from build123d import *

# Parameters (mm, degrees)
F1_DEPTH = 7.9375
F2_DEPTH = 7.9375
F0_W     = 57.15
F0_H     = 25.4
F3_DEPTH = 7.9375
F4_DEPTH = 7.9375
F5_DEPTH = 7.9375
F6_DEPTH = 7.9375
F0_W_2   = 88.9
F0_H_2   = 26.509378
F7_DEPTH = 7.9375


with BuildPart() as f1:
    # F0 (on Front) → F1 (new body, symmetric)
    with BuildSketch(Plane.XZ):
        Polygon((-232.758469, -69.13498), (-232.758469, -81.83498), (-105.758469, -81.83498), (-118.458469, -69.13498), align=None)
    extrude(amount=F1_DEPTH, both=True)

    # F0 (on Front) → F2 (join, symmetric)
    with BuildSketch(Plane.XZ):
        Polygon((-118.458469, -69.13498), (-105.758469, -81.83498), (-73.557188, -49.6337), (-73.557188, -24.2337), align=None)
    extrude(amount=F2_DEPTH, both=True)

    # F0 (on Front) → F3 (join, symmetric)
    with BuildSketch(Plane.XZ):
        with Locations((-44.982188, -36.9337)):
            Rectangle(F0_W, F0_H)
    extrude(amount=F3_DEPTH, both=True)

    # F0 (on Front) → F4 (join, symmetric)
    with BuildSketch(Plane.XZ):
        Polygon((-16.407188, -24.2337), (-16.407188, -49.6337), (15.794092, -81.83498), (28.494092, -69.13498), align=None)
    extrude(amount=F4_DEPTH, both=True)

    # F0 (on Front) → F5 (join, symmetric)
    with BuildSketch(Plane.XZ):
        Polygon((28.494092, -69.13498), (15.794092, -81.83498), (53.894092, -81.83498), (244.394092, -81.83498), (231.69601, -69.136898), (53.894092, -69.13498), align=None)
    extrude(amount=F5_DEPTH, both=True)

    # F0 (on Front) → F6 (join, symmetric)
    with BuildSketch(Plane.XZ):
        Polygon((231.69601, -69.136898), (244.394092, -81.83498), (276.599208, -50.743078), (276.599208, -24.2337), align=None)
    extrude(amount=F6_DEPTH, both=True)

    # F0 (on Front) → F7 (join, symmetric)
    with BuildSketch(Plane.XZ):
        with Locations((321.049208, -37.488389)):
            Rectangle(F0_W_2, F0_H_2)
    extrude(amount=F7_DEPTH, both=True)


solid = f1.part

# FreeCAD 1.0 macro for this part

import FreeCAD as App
import Part
import Sketcher

V = App.Vector
Q = App.Units.Quantity


def add_polygon(sketch, points):
    """Adds a closed chain of lines whose ends are joined by coincident constraints."""
    first, n = sketch.GeometryCount, len(points)
    for a, b in zip(points, points[1:] + points[:1]):
        sketch.addGeometry(Part.LineSegment(App.Vector(*a, 0), App.Vector(*b, 0)), False)
    for i in range(n):
        sketch.addConstraint(Sketcher.Constraint("Coincident", first + i, 2, first + (i + 1) % n, 1))

doc = App.newDocument("Part")
body = doc.addObject("PartDesign::Body", "Body")

# Sketch on XZ plane
sketch1 = body.newObject("Sketcher::SketchObject", "Sketch")
sketch1.AttachmentSupport = (doc.getObject("XZ_Plane"), [""])
sketch1.MapMode = "FlatFace"
add_polygon(sketch1, [(-233, -69), (-233, -82), (-106, -82), (-118, -69)])  # lines 0-3
sketch1.addConstraint([
    Sketcher.Constraint("Vertical", 0),
    Sketcher.Constraint("Horizontal", 1),
    Sketcher.Constraint("Horizontal", 3),
    Sketcher.Constraint("DistanceX", 1, 1, 1, 2, Q("5 in")),
    Sketcher.Constraint("DistanceX", 3, 2, 3, 1, Q("4.5 in")),
    Sketcher.Constraint("DistanceY", 0, 2, 0, 1, Q("0.5 in")),
    Sketcher.Constraint("DistanceX", 0, 2, -1, 1, 232.758469),
    Sketcher.Constraint("DistanceY", 0, 2, -1, 1, 81.83498),
])
pad1 = body.newObject("PartDesign::Pad", "Pad")
pad1.Profile = sketch1
pad1.Length = Q("0.625 in")
pad1.Midplane = True

# Sketch on XZ plane
sketch2 = body.newObject("Sketcher::SketchObject", "Sketch001")
sketch2.AttachmentSupport = (doc.getObject("XZ_Plane"), [""])
sketch2.MapMode = "FlatFace"
add_polygon(sketch2, [(-118, -69), (-106, -82), (-74, -50), (-74, -24)])  # lines 0-3
sketch2.addConstraint([
    Sketcher.Constraint("Vertical", 2),
    Sketcher.Constraint("Perpendicular", 0, 1),
    Sketcher.Constraint("Parallel", 1, 3),
    Sketcher.Constraint("DistanceY", 2, 1, 2, 2, Q("1 in")),
    Sketcher.Constraint("Angle", 0, Q("-45 deg")),
    Sketcher.Constraint("Distance", 3, Q("2.5 in")),
    Sketcher.Constraint("DistanceY", 1, 2, -1, 1, 49.6337),
    Sketcher.Constraint("DistanceX", 0, 2, -1, 1, 105.758469),
])
pad2 = body.newObject("PartDesign::Pad", "Pad001")
pad2.Profile = sketch2
pad2.Length = Q("0.625 in")
pad2.Midplane = True

# Sketch on XZ plane
sketch3 = body.newObject("Sketcher::SketchObject", "Sketch002")
sketch3.AttachmentSupport = (doc.getObject("XZ_Plane"), [""])
sketch3.MapMode = "FlatFace"
add_polygon(sketch3, [(-74, -24), (-74, -50), (-16, -50), (-16, -24)])  # lines 0-3
sketch3.addConstraint([
    Sketcher.Constraint("Vertical", 0),
    Sketcher.Constraint("Horizontal", 1),
    Sketcher.Constraint("Vertical", 2),
    Sketcher.Constraint("Horizontal", 3),
    Sketcher.Constraint("DistanceY", 0, 2, 0, 1, Q("1 in")),
    Sketcher.Constraint("DistanceX", 1, 1, 1, 2, Q("2.25 in")),
    Sketcher.Constraint("DistanceY", 0, 2, -1, 1, 49.6337),
    Sketcher.Constraint("DistanceX", 1, 2, -1, 1, 16.407188),
])
pad3 = body.newObject("PartDesign::Pad", "Pad002")
pad3.Profile = sketch3
pad3.Length = Q("0.625 in")
pad3.Midplane = True

# Sketch on XZ plane
sketch4 = body.newObject("Sketcher::SketchObject", "Sketch003")
sketch4.AttachmentSupport = (doc.getObject("XZ_Plane"), [""])
sketch4.MapMode = "FlatFace"
add_polygon(sketch4, [(-16, -24), (-16, -50), (16, -82), (28, -69)])  # lines 0-3
sketch4.addConstraint([
    Sketcher.Constraint("Vertical", 0),
    Sketcher.Constraint("Perpendicular", 1, 2),
    Sketcher.Constraint("Perpendicular", 2, 3),
    Sketcher.Constraint("DistanceY", 0, 2, 0, 1, Q("1 in")),
    Sketcher.Constraint("Angle", 1, Q("-45 deg")),
    Sketcher.Constraint("Distance", 3, Q("2.5 in")),
    Sketcher.Constraint("DistanceY", 0, 2, -1, 1, 49.6337),
    Sketcher.Constraint("DistanceX", 0, 2, -1, 1, 16.407188),
])
pad4 = body.newObject("PartDesign::Pad", "Pad003")
pad4.Profile = sketch4
pad4.Length = Q("0.625 in")
pad4.Midplane = True

# Sketch on XZ plane
sketch5 = body.newObject("Sketcher::SketchObject", "Sketch004")
sketch5.AttachmentSupport = (doc.getObject("XZ_Plane"), [""])
sketch5.MapMode = "FlatFace"
add_polygon(sketch5, [(28, -69), (16, -82), (244, -82), (232, -69), (54, -69)])  # lines 0-4
sketch5.addConstraint([
    Sketcher.Constraint("Horizontal", 1),
    Sketcher.Constraint("Horizontal", 4),
    Sketcher.Constraint("Perpendicular", 0, 2),
    Sketcher.Constraint("DistanceX", 1, 1, 1, 2, Q("9 in")),
    Sketcher.Constraint("DistanceX", 4, 2, 4, 1, Q("1 in")),
    Sketcher.Constraint("Angle", 0, Q("-135 deg")),
    Sketcher.Constraint("DistanceX", 0, 2, 3, 2, Q("1.5 in")),
    Sketcher.Constraint("Distance", 2, Q("0.707 in")),
    Sketcher.Constraint("DistanceY", 2, 2, -1, 1, 69.136898),
    Sketcher.Constraint("DistanceX", -1, 1, 0, 2, 15.794092),
])
pad5 = body.newObject("PartDesign::Pad", "Pad004")
pad5.Profile = sketch5
pad5.Length = Q("0.625 in")
pad5.Midplane = True

# Sketch on XZ plane
sketch6 = body.newObject("Sketcher::SketchObject", "Sketch005")
sketch6.AttachmentSupport = (doc.getObject("XZ_Plane"), [""])
sketch6.MapMode = "FlatFace"
add_polygon(sketch6, [(232, -69), (244, -82), (277, -51), (277, -24)])  # lines 0-3
sketch6.addConstraint([
    Sketcher.Constraint("Vertical", 2),
    Sketcher.Constraint("Perpendicular", 0, 3),
    Sketcher.Constraint("Angle", 0, Q("-45 deg")),
    Sketcher.Constraint("Distance", 0, Q("0.707 in")),
    Sketcher.Constraint("DistanceY", 2, 2, -1, 1, 24.2337),
    Sketcher.Constraint("DistanceY", 3, 2, -1, 1, 69.136898),
    Sketcher.Constraint("DistanceY", 2, 1, 2, 2, 26.509378),
    Sketcher.Constraint("DistanceX", -1, 1, 0, 2, 244.394092),
])
pad6 = body.newObject("PartDesign::Pad", "Pad005")
pad6.Profile = sketch6
pad6.Length = Q("0.625 in")
pad6.Midplane = True

# Sketch on XZ plane
sketch7 = body.newObject("Sketcher::SketchObject", "Sketch006")
sketch7.AttachmentSupport = (doc.getObject("XZ_Plane"), [""])
sketch7.MapMode = "FlatFace"
add_polygon(sketch7, [(277, -24), (277, -51), (365, -51), (365, -24)])  # lines 0-3
sketch7.addConstraint([
    Sketcher.Constraint("Vertical", 0),
    Sketcher.Constraint("Horizontal", 1),
    Sketcher.Constraint("Vertical", 2),
    Sketcher.Constraint("Horizontal", 3),
    Sketcher.Constraint("DistanceX", 1, 1, 1, 2, Q("3.5 in")),
    Sketcher.Constraint("DistanceY", 2, 2, -1, 1, 24.2337),
    Sketcher.Constraint("DistanceY", 0, 2, 0, 1, 26.509378),
    Sketcher.Constraint("DistanceX", -1, 1, 1, 2, 365.499208),
])
pad7 = body.newObject("PartDesign::Pad", "Pad006")
pad7.Profile = sketch7
pad7.Length = Q("0.625 in")
pad7.Midplane = True

doc.recompute()
